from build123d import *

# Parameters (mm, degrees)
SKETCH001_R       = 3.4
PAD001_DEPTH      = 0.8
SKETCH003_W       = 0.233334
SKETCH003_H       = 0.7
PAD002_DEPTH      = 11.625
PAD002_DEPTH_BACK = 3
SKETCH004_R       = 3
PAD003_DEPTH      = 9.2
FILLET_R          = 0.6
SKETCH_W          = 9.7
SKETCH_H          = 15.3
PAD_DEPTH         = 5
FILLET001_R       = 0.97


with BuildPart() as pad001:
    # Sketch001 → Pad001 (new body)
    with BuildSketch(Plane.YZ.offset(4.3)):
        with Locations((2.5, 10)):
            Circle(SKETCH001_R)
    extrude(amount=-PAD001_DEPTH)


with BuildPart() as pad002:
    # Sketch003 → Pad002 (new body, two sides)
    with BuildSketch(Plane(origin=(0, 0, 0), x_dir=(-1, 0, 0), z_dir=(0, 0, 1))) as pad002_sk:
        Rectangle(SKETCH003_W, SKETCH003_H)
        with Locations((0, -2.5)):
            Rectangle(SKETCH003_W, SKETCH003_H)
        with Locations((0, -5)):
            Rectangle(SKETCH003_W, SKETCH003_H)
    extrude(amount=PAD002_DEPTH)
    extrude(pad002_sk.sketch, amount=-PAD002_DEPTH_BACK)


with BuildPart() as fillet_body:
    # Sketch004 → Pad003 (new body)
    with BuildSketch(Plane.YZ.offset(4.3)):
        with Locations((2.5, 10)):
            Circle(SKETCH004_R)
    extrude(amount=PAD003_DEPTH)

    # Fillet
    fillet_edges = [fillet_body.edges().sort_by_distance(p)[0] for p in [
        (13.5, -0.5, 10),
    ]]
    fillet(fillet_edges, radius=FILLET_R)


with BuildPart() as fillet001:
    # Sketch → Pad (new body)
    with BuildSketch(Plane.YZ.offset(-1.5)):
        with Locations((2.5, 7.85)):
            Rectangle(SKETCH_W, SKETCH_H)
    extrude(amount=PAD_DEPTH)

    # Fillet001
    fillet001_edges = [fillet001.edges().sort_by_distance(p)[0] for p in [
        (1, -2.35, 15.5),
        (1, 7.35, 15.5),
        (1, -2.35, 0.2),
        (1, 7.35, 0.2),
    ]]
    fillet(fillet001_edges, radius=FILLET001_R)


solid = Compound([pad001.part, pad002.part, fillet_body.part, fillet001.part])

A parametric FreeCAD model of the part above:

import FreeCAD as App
import Part
import Sketcher

V = App.Vector
Q = App.Units.Quantity


def edges_at(feature, points):
    """Names of the edges that pass closest to the given points."""
    edges = feature.Shape.Edges
    near = lambda p: min(range(len(edges)), key=lambda i: edges[i].distToShape(Part.Vertex(*p))[0])
    return sorted({f"Edge{near(p) + 1}" for p in points})


def add_polygon(sketch, points):
    """Adds a closed chain of lines whose ends are joined by coincident constraints."""
    first, n = sketch.GeometryCount, len(points)
    for a, b in zip(points, points[1:] + points[:1]):
        sketch.addGeometry(Part.LineSegment(App.Vector(*a, 0), App.Vector(*b, 0)), False)
    for i in range(n):
        sketch.addConstraint(Sketcher.Constraint("Coincident", first + i, 2, first + (i + 1) % n, 1))

doc = App.newDocument("Part")
body = doc.addObject("PartDesign::Body", "Body")

# Sketch on YZ plane
sketch1 = body.newObject("Sketcher::SketchObject", "Sketch")
sketch1.AttachmentSupport = (doc.getObject("YZ_Plane"), [""])
sketch1.MapMode = "FlatFace"
sketch1.AttachmentOffset = App.Placement(V(0, 0, 4.3), App.Rotation())
sketch1.addGeometry(Part.Circle(V(2.5, 10, 0), V(0, 0, 1), 3.4), False)
sketch1.addConstraint([
    Sketcher.Constraint("Diameter", 0, Q("6.8 mm")),
    Sketcher.Constraint("DistanceY", -1, 1, 0, 3, Q("10 mm")),
    Sketcher.Constraint("DistanceX", -1, 1, 0, 3, Q("2.5 mm")),
])
pad1 = body.newObject("PartDesign::Pad", "Pad")
pad1.Profile = sketch1
pad1.Length = 0.8
pad1.Reversed = True
body2 = doc.addObject("PartDesign::Body", "Body001")
body2.AllowCompound = True

# Sketch on XY plane
sketch2 = body2.newObject("Sketcher::SketchObject", "Sketch001")
sketch2.AttachmentSupport = (doc.getObject("XY_Plane001"), [""])
sketch2.MapMode = "FlatFace"
add_polygon(sketch2, [(0.12, -0.35), (0.12, 0.35), (-0.12, 0.35), (-0.12, -0.35)])  # lines 0-3
add_polygon(sketch2, [(0.12, 2.15), (0.12, 2.85), (-0.12, 2.85), (-0.12, 2.15)])  # lines 4-7
add_polygon(sketch2, [(0.12, 4.65), (0.12, 5.35), (-0.12, 5.35), (-0.12, 4.65)])  # lines 8-11
sketch2.addConstraint([
    Sketcher.Constraint("Vertical", 0),
    Sketcher.Constraint("Horizontal", 1),
    Sketcher.Constraint("Vertical", 2),
    Sketcher.Constraint("Horizontal", 3),
    Sketcher.Constraint("Vertical", 4),
    Sketcher.Constraint("Horizontal", 5),
    Sketcher.Constraint("Vertical", 6),
    Sketcher.Constraint("Horizontal", 7),
    Sketcher.Constraint("Vertical", 8),
    Sketcher.Constraint("Horizontal", 9),
    Sketcher.Constraint("Vertical", 10),
    Sketcher.Constraint("Horizontal", 11),
    Sketcher.Constraint("Symmetric", 0, 2, 2, 2, -1, 1),
    Sketcher.Constraint("Vertical", 3, 2, 4, 2),
    Sketcher.Constraint("Vertical", 2, 2, 5, 2),
    Sketcher.Constraint("Vertical", 7, 2, 8, 2),
    Sketcher.Constraint("Vertical", 6, 2, 9, 2),
    Sketcher.Constraint("Equal", 2, 4),
    Sketcher.Constraint("Equal", 6, 8),
    Sketcher.Constraint("DistanceY", 0, 1, 0, 2, Q("0.7 mm")),
    Sketcher.Constraint("DistanceY", 0, 2, 8, 2, Q("5 mm")),
    Sketcher.Constraint("DistanceY", 0, 2, 4, 2, Q("2.5 mm")),
    Sketcher.Constraint("DistanceX", 1, 2, 1, 1, Q("0.233334 mm")),
])
pad2 = body2.newObject("PartDesign::Pad", "Pad001")
pad2.Profile = sketch2
pad2.Type = "TwoLengths"
pad2.Length = 11.625
pad2.Length2 = 3
body3 = doc.addObject("PartDesign::Body", "Body002")

# Sketch on YZ plane
sketch3 = body3.newObject("Sketcher::SketchObject", "Sketch002")
sketch3.AttachmentSupport = (doc.getObject("YZ_Plane002"), [""])
sketch3.MapMode = "FlatFace"
sketch3.AttachmentOffset = App.Placement(V(0, 0, 4.3), App.Rotation())
sketch3.addGeometry(Part.Circle(V(2.5, 10, 0), V(0, 0, 1), 3), False)
sketch3.addConstraint([
    Sketcher.Constraint("Diameter", 0, Q("6 mm")),
    Sketcher.Constraint("DistanceY", -1, 1, 0, 3, Q("10 mm")),
    Sketcher.Constraint("DistanceX", -1, 1, 0, 3, Q("2.5 mm")),
])
pad3 = body3.newObject("PartDesign::Pad", "Pad002")
pad3.Profile = sketch3
pad3.Length = 9.2
doc.recompute()

fillet = body3.newObject("PartDesign::Fillet", "Fillet")
fillet.Base = (pad3, edges_at(pad3, [(13.5, -0.5, 10)]))
fillet.Radius = 0.6
body4 = doc.addObject("PartDesign::Body", "Body003")

# Sketch on YZ plane
sketch4 = body4.newObject("Sketcher::SketchObject", "Sketch003")
sketch4.AttachmentSupport = (doc.getObject("YZ_Plane003"), [""])
sketch4.MapMode = "FlatFace"
sketch4.AttachmentOffset = App.Placement(V(0, 0, -1.5), App.Rotation())
add_polygon(sketch4, [(-2, 16), (-2, 0), (7, 0), (7, 16)])  # lines 0-3
sketch4.addConstraint([
    Sketcher.Constraint("Vertical", 0),
    Sketcher.Constraint("Horizontal", 1),
    Sketcher.Constraint("Vertical", 2),
    Sketcher.Constraint("Horizontal", 3),
    Sketcher.Constraint("DistanceX", 1, 1, 1, 2, Q("9.7 mm")),
    Sketcher.Constraint("DistanceY", 0, 2, 0, 1, Q("15.3 mm")),
    Sketcher.Constraint("DistanceY", -1, 1, 0, 2, Q("0.2 mm")),
    Sketcher.Constraint("DistanceX", 0, 2, -1, 1, Q("2.35 mm")),
])
pad4 = body4.newObject("PartDesign::Pad", "Pad003")
pad4.Profile = sketch4
pad4.Length = 5
doc.recompute()

fillet2 = body4.newObject("PartDesign::Fillet", "Fillet001")
fillet2.Base = (pad4, edges_at(pad4, [
    (1, -2.35, 15.5),
    (1, 7.35, 15.5),
    (1, -2.35, 0.2),
    (1, 7.35, 0.2),
]))
fillet2.Radius = 0.97

doc.recompute()
